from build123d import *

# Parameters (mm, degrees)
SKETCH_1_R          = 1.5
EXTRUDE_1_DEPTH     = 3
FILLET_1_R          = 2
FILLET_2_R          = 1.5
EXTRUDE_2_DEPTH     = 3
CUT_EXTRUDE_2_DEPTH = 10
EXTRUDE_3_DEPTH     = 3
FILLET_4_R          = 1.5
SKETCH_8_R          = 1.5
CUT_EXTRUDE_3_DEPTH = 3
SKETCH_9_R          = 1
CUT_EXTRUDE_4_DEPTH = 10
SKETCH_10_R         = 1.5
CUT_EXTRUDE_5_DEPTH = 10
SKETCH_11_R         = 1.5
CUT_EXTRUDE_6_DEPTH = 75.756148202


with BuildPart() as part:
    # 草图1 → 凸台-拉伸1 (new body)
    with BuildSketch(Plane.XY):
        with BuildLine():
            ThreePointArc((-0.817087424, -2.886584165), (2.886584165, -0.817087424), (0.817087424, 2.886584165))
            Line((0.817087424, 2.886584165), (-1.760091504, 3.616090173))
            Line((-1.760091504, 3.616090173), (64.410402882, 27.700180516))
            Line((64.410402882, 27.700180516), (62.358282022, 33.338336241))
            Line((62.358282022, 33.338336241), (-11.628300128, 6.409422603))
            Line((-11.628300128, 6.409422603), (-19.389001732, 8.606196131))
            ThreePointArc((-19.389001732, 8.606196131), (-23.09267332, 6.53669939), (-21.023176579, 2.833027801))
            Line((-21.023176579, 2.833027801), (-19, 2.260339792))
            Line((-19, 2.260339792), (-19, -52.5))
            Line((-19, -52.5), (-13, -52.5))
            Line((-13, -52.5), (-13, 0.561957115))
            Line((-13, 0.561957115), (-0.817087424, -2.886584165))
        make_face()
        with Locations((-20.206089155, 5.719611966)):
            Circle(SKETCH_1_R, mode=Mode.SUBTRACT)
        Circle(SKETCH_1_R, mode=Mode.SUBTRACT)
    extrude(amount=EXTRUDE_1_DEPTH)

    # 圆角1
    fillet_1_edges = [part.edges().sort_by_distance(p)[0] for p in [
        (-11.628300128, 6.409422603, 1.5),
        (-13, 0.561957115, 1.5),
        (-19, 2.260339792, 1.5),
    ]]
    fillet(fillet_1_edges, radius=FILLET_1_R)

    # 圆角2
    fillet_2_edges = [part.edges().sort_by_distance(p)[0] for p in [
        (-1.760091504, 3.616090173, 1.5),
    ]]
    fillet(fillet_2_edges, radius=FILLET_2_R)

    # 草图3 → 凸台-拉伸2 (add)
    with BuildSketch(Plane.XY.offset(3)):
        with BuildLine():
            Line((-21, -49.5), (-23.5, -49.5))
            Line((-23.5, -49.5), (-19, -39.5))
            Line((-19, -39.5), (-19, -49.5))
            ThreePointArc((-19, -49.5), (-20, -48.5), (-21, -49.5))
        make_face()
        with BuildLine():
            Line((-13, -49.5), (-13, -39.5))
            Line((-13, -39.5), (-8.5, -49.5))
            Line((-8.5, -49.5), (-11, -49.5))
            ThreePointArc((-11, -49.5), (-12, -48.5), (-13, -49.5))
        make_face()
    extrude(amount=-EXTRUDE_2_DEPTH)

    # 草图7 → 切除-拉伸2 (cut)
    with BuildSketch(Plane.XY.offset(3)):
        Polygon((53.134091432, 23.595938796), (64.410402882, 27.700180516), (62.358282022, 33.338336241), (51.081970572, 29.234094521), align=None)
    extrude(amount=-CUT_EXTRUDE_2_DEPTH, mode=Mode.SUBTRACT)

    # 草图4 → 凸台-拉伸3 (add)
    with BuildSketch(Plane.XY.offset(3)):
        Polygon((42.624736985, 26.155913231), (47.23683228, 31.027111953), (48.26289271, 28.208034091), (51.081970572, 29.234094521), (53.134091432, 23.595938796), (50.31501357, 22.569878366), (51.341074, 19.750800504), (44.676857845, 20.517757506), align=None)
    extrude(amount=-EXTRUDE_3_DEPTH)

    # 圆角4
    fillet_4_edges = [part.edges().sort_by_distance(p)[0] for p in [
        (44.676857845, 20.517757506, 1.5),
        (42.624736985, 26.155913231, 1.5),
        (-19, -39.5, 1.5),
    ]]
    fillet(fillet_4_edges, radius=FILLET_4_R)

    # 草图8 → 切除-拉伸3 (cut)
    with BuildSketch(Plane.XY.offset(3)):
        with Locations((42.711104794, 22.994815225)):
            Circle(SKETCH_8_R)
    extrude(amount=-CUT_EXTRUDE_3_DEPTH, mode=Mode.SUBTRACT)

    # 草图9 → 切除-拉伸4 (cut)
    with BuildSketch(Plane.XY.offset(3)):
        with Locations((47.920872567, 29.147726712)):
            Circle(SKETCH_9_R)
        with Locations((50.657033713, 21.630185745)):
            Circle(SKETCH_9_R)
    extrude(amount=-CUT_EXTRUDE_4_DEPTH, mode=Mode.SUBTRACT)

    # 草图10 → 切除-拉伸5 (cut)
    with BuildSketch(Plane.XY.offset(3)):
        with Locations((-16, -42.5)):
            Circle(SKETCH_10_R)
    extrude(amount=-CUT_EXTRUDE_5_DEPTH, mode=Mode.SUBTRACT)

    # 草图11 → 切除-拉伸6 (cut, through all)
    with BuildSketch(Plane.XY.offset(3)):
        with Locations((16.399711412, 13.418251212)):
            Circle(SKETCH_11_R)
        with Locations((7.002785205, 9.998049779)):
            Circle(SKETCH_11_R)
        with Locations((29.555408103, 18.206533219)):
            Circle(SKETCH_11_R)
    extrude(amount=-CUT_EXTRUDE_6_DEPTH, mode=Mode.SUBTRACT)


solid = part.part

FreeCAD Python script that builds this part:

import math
import FreeCAD as App
import Part
import Sketcher

V = App.Vector
Q = App.Units.Quantity


def edges_at(feature, points):
    """Names of the edges that pass closest to the given points."""
    edges = feature.Shape.Edges
    near = lambda p: min(range(len(edges)), key=lambda i: edges[i].distToShape(Part.Vertex(*p))[0])
    return sorted({f"Edge{near(p) + 1}" for p in points})


def add_polygon(sketch, points):
    """Adds a closed chain of lines whose ends are joined by coincident constraints."""
    first, n = sketch.GeometryCount, len(points)
    for a, b in zip(points, points[1:] + points[:1]):
        sketch.addGeometry(Part.LineSegment(App.Vector(*a, 0), App.Vector(*b, 0)), False)
    for i in range(n):
        sketch.addConstraint(Sketcher.Constraint("Coincident", first + i, 2, first + (i + 1) % n, 1))

doc = App.newDocument("Part")
body = doc.addObject("PartDesign::Body", "Body")

# Sketch on XY plane
sketch1 = body.newObject("Sketcher::SketchObject", "Sketch")
sketch1.AttachmentSupport = (doc.getObject("XY_Plane"), [""])
sketch1.MapMode = "FlatFace"
sketch1.addGeometry([
    Part.ArcOfCircle(Part.Circle(V(0, 0, 0), V(0, 0, 1), 3), math.radians(-105.804896), math.radians(74.195104)),  # 0
    Part.LineSegment(V(0.817087, 2.886584, 0), V(-1.760092, 3.61609, 0)),  # 1
    Part.LineSegment(V(-1.760092, 3.61609, 0), V(64.410403, 27.700181, 0)),  # 2
    Part.LineSegment(V(64.410403, 27.700181, 0), V(62.358282, 33.338336, 0)),  # 3
    Part.LineSegment(V(62.358282, 33.338336, 0), V(-11.6283, 6.409423, 0)),  # 4
    Part.LineSegment(V(-11.6283, 6.409423, 0), V(-19.389002, 8.606196, 0)),  # 5
    Part.ArcOfCircle(Part.Circle(V(-20.206089, 5.719612, 0), V(0, 0, 1), 3), math.radians(74.195104), math.radians(254.195104)),  # 6
    Part.LineSegment(V(-21.023177, 2.833028, 0), V(-19, 2.26034, 0)),  # 7
    Part.LineSegment(V(-19, 2.26034, 0), V(-19, -52.5, 0)),  # 8
    Part.LineSegment(V(-19, -52.5, 0), V(-13, -52.5, 0)),  # 9
    Part.LineSegment(V(-13, -52.5, 0), V(-13, 0.561957, 0)),  # 10
    Part.LineSegment(V(-13, 0.561957, 0), V(-0.817087, -2.886584, 0)),  # 11
    Part.Circle(V(0, 0, 0), V(0, 0, 1), 1.5),  # 12
    Part.Circle(V(-20.206089, 5.719612, 0), V(0, 0, 1), 1.5),  # 13
], False)
sketch1.addConstraint([
    Sketcher.Constraint("Tangent", 0, 2, 1, 1),
    Sketcher.Constraint("Coincident", 1, 2, 2, 1),
    Sketcher.Constraint("Coincident", 2, 2, 3, 1),
    Sketcher.Constraint("Coincident", 3, 2, 4, 1),
    Sketcher.Constraint("Coincident", 4, 2, 5, 1),
    Sketcher.Constraint("Tangent", 5, 2, 6, 1),
    Sketcher.Constraint("Tangent", 6, 2, 7, 1),
    Sketcher.Constraint("Coincident", 7, 2, 8, 1),
    Sketcher.Constraint("Coincident", 8, 2, 9, 1),
    Sketcher.Constraint("Coincident", 9, 2, 10, 1),
    Sketcher.Constraint("Coincident", 10, 2, 11, 1),
    Sketcher.Constraint("Tangent", 11, 2, 0, 1),
    Sketcher.Constraint("Vertical", 8),
    Sketcher.Constraint("Horizontal", 9),
    Sketcher.Constraint("Vertical", 10),
    Sketcher.Constraint("Coincident", 0, 3, -1, 1),
    Sketcher.Constraint("Coincident", 12, 3, -1, 1),
    Sketcher.Constraint("Coincident", 13, 3, 6, 3),
    Sketcher.Constraint("Equal", 0, 6),
    Sketcher.Constraint("Equal", 12, 13),
    Sketcher.Constraint("Perpendicular", 2, 3),
    Sketcher.Constraint("Perpendicular", 3, 4),
    Sketcher.Constraint("Parallel", 1, 5),
    Sketcher.Constraint("Parallel", 5, 7),
    Sketcher.Constraint("Parallel", 7, 11),
    Sketcher.Constraint("Diameter", 12, 3.0),
    Sketcher.Constraint("Radius", 0, 3.0),
    Sketcher.Constraint("DistanceX", 9, 1, 9, 2, 6.0),
    Sketcher.Constraint("Angle", 2, Q("20 deg")),
    Sketcher.Constraint("Distance", 3, 6.0),
    Sketcher.Constraint("DistanceX", 7, 2, -1, 1, 19.0),
    Sketcher.Constraint("DistanceY", 8, 2, -1, 1, 52.5),
    Sketcher.Constraint("DistanceX", 5, 2, -1, 1, 19.389002),
    Sketcher.Constraint("DistanceY", 8, 2, 8, 1, 54.76034),
    Sketcher.Constraint("DistanceX", 4, 2, -1, 1, 11.6283),
    Sketcher.Constraint("Distance", 1, 2.678438),
    Sketcher.Constraint("Distance", 2, 70.417169),
])
pad1 = body.newObject("PartDesign::Pad", "Pad")
pad1.Profile = sketch1
pad1.Length = 3
doc.recompute()

fillet = body.newObject("PartDesign::Fillet", "Fillet")
fillet.Base = (pad1, edges_at(pad1, [(-11.628, 6.409, 1.5), (-13, 0.562, 1.5), (-19, 2.26, 1.5)]))
fillet.Radius = 2
doc.recompute()

fillet2 = body.newObject("PartDesign::Fillet", "Fillet001")
fillet2.Base = (fillet, edges_at(fillet, [(-1.76, 3.616, 1.5)]))
fillet2.Radius = 1.5

# Sketch on XY plane
sketch2 = body.newObject("Sketcher::SketchObject", "Sketch001")
sketch2.AttachmentSupport = (doc.getObject("XY_Plane"), [""])
sketch2.MapMode = "FlatFace"
sketch2.AttachmentOffset = App.Placement(V(0, 0, 3), App.Rotation())
sketch2.addGeometry([
    Part.LineSegment(V(-23.5, -49.5, 0), V(-21, -49.5, 0)),  # 0
    Part.ArcOfCircle(Part.Circle(V(-20, -49.5, 0), V(0, 0, 1), 1), math.radians(0), math.radians(180)),  # 1
    Part.LineSegment(V(-19, -49.5, 0), V(-19, -39.5, 0)),  # 2
    Part.LineSegment(V(-19, -39.5, 0), V(-23.5, -49.5, 0)),  # 3
    Part.LineSegment(V(-13, -39.5, 0), V(-13, -49.5, 0)),  # 4
    Part.ArcOfCircle(Part.Circle(V(-12, -49.5, 0), V(0, 0, 1), 1), math.radians(0), math.radians(180)),  # 5
    Part.LineSegment(V(-11, -49.5, 0), V(-8.5, -49.5, 0)),  # 6
    Part.LineSegment(V(-8.5, -49.5, 0), V(-13, -39.5, 0)),  # 7
], False)
sketch2.addConstraint([
    Sketcher.Constraint("Coincident", 0, 2, 1, 2),
    Sketcher.Constraint("Tangent", 1, 1, 2, 1),
    Sketcher.Constraint("Coincident", 2, 2, 3, 1),
    Sketcher.Constraint("Coincident", 3, 2, 0, 1),
    Sketcher.Constraint("Tangent", 4, 2, 5, 2),
    Sketcher.Constraint("Coincident", 5, 1, 6, 1),
    Sketcher.Constraint("Coincident", 6, 2, 7, 1),
    Sketcher.Constraint("Coincident", 7, 2, 4, 1),
    Sketcher.Constraint("Horizontal", 0),
    Sketcher.Constraint("Vertical", 2),
    Sketcher.Constraint("Vertical", 4),
    Sketcher.Constraint("Horizontal", 6),
    Sketcher.Constraint("Equal", 1, 5),
    Sketcher.Constraint("Horizontal", 1, 3, 5, 3),
    Sketcher.Constraint("Horizontal", 5, 3, 0, 2),
    Sketcher.Constraint("Horizontal", 4, 2, 5, 1),
    Sketcher.Constraint("Horizontal", 2, 2, 7, 2),
    Sketcher.Constraint("Equal", 0, 6),
    Sketcher.Constraint("Radius", 1, 1.0),
    Sketcher.Constraint("DistanceY", 2, 1, 2, 2, 10.0),
    Sketcher.Constraint("DistanceX", 0, 1, 0, 2, 2.5),
    Sketcher.Constraint("DistanceX", 1, 3, -1, 1, 20.0),
    Sketcher.Constraint("DistanceX", 5, 3, -1, 1, 12.0),
    Sketcher.Constraint("DistanceY", 1, 3, -1, 1, 49.5),
])
pad2 = body.newObject("PartDesign::Pad", "Pad001")
pad2.Profile = sketch2
pad2.Length = 3
pad2.Reversed = True

# Sketch on XY plane
sketch3 = body.newObject("Sketcher::SketchObject", "Sketch002")
sketch3.AttachmentSupport = (doc.getObject("XY_Plane"), [""])
sketch3.MapMode = "FlatFace"
sketch3.AttachmentOffset = App.Placement(V(0, 0, 3), App.Rotation())
add_polygon(sketch3, [(53.134091, 23.595939), (64.410403, 27.700181), (62.358282, 33.338336), (51.081971, 29.234095)])  # lines 0-3
sketch3.addConstraint([
    Sketcher.Constraint("Perpendicular", 0, 1),
    Sketcher.Constraint("Perpendicular", 1, 2),
    Sketcher.Constraint("Perpendicular", 2, 3),
    Sketcher.Constraint("Angle", 0, Q("20 deg")),
    Sketcher.Constraint("Distance", 0, 12.0),
    Sketcher.Constraint("Distance", 1, 6.0),
    Sketcher.Constraint("DistanceY", -1, 1, 0, 2, 27.700181),
    Sketcher.Constraint("DistanceX", -1, 1, 2, 2, 51.081971),
])
pocket1 = body.newObject("PartDesign::Pocket", "Pocket")
pocket1.Profile = sketch3
pocket1.Length = 10

# Sketch on XY plane
sketch4 = body.newObject("Sketcher::SketchObject", "Sketch003")
sketch4.AttachmentSupport = (doc.getObject("XY_Plane"), [""])
sketch4.MapMode = "FlatFace"
sketch4.AttachmentOffset = App.Placement(V(0, 0, 3), App.Rotation())
add_polygon(sketch4, [(47.236832, 31.027112), (42.624737, 26.155913), (44.676858, 20.517758), (51.341074, 19.750801), (50.315014, 22.569878), (53.134091, 23.595939), (51.081971, 29.234095), (48.262893, 28.208034)])  # lines 0-7
sketch4.addConstraint([
    Sketcher.Constraint("Parallel", 1, 3),
    Sketcher.Constraint("Perpendicular", 3, 4),
    Sketcher.Constraint("Perpendicular", 4, 5),
    Sketcher.Constraint("Perpendicular", 5, 6),
    Sketcher.Constraint("Perpendicular", 6, 7),
    Sketcher.Constraint("Equal", 0, 2),
    Sketcher.Constraint("Equal", 3, 4),
    Sketcher.Constraint("Equal", 1, 5),
    Sketcher.Constraint("Equal", 4, 6),
    Sketcher.Constraint("Equal", 6, 7),
    Sketcher.Constraint("Angle", 1, Q("-70 deg")),
    Sketcher.Constraint("Distance", 1, 6.0),
    Sketcher.Constraint("Distance", 3, 3.0),
    Sketcher.Constraint("DistanceY", -1, 1, 2, 2, 19.750801),
    Sketcher.Constraint("DistanceY", 0, 2, 7, 2, 4.871199),
    Sketcher.Constraint("DistanceX", -1, 1, 4, 2, 53.134091),
])
pad3 = body.newObject("PartDesign::Pad", "Pad002")
pad3.Profile = sketch4
pad3.Length = 3
pad3.Reversed = True
doc.recompute()

fillet3 = body.newObject("PartDesign::Fillet", "Fillet002")
fillet3.Base = (pad3, edges_at(pad3, [(44.677, 20.518, 1.5), (42.625, 26.156, 1.5), (-19, -39.5, 1.5)]))
fillet3.Radius = 1.5

# Sketch on XY plane
sketch5 = body.newObject("Sketcher::SketchObject", "Sketch004")
sketch5.AttachmentSupport = (doc.getObject("XY_Plane"), [""])
sketch5.MapMode = "FlatFace"
sketch5.AttachmentOffset = App.Placement(V(0, 0, 3), App.Rotation())
sketch5.addGeometry(Part.Circle(V(42.711105, 22.994815, 0), V(0, 0, 1), 1.5), False)
sketch5.addConstraint([
    Sketcher.Constraint("Diameter", 0, 3.0),
    Sketcher.Constraint("DistanceX", -1, 1, 0, 3, 42.711105),
    Sketcher.Constraint("DistanceY", -1, 1, 0, 3, 22.994815),
])
pocket2 = body.newObject("PartDesign::Pocket", "Pocket001")
pocket2.Profile = sketch5
pocket2.Length = 3

# Sketch on XY plane
sketch6 = body.newObject("Sketcher::SketchObject", "Sketch005")
sketch6.AttachmentSupport = (doc.getObject("XY_Plane"), [""])
sketch6.MapMode = "FlatFace"
sketch6.AttachmentOffset = App.Placement(V(0, 0, 3), App.Rotation())
sketch6.addGeometry([
    Part.Circle(V(47.920873, 29.147727, 0), V(0, 0, 1), 1),
    Part.Circle(V(50.657034, 21.630186, 0), V(0, 0, 1), 1),
], False)
sketch6.addConstraint([
    Sketcher.Constraint("Equal", 0, 1),
    Sketcher.Constraint("Diameter", 0, 2.0),
    Sketcher.Constraint("DistanceX", 0, 3, 1, 3, 2.736161),
    Sketcher.Constraint("DistanceY", 1, 3, 0, 3, 7.517541),
    Sketcher.Constraint("DistanceX", -1, 1, 0, 3, 47.920873),
    Sketcher.Constraint("DistanceY", -1, 1, 0, 3, 29.147727),
])
pocket3 = body.newObject("PartDesign::Pocket", "Pocket002")
pocket3.Profile = sketch6
pocket3.Length = 10

# Sketch on XY plane
sketch7 = body.newObject("Sketcher::SketchObject", "Sketch006")
sketch7.AttachmentSupport = (doc.getObject("XY_Plane"), [""])
sketch7.MapMode = "FlatFace"
sketch7.AttachmentOffset = App.Placement(V(0, 0, 3), App.Rotation())
sketch7.addGeometry(Part.Circle(V(-16, -42.5, 0), V(0, 0, 1), 1.5), False)
sketch7.addConstraint([
    Sketcher.Constraint("Diameter", 0, 3.0),
    Sketcher.Constraint("DistanceX", 0, 3, -1, 1, 16.0),
    Sketcher.Constraint("DistanceY", 0, 3, -1, 1, 42.5),
])
pocket4 = body.newObject("PartDesign::Pocket", "Pocket003")
pocket4.Profile = sketch7
pocket4.Length = 10

# Sketch on XY plane
sketch8 = body.newObject("Sketcher::SketchObject", "Sketch007")
sketch8.AttachmentSupport = (doc.getObject("XY_Plane"), [""])
sketch8.MapMode = "FlatFace"
sketch8.AttachmentOffset = App.Placement(V(0, 0, 3), App.Rotation())
sketch8.addGeometry([
    Part.Circle(V(16.399711, 13.418251, 0), V(0, 0, 1), 1.5),
    Part.Circle(V(7.002785, 9.99805, 0), V(0, 0, 1), 1.5),
    Part.Circle(V(29.555408, 18.206533, 0), V(0, 0, 1), 1.5),
], False)
sketch8.addConstraint([
    Sketcher.Constraint("Equal", 0, 1),
    Sketcher.Constraint("Equal", 1, 2),
    Sketcher.Constraint("Diameter", 0, 3.0),
    Sketcher.Constraint("DistanceY", 1, 3, 0, 3, 3.420201),
    Sketcher.Constraint("DistanceX", -1, 1, 0, 3, 16.399711),
    Sketcher.Constraint("DistanceY", -1, 1, 0, 3, 13.418251),
    Sketcher.Constraint("DistanceX", -1, 1, 2, 3, 29.555408),
    Sketcher.Constraint("DistanceX", -1, 1, 1, 3, 7.002785),
    Sketcher.Constraint("DistanceY", -1, 1, 2, 3, 18.206533),
])
pocket5 = body.newObject("PartDesign::Pocket", "Pocket004")
pocket5.Profile = sketch8
pocket5.Type = "ThroughAll"

doc.recompute()
